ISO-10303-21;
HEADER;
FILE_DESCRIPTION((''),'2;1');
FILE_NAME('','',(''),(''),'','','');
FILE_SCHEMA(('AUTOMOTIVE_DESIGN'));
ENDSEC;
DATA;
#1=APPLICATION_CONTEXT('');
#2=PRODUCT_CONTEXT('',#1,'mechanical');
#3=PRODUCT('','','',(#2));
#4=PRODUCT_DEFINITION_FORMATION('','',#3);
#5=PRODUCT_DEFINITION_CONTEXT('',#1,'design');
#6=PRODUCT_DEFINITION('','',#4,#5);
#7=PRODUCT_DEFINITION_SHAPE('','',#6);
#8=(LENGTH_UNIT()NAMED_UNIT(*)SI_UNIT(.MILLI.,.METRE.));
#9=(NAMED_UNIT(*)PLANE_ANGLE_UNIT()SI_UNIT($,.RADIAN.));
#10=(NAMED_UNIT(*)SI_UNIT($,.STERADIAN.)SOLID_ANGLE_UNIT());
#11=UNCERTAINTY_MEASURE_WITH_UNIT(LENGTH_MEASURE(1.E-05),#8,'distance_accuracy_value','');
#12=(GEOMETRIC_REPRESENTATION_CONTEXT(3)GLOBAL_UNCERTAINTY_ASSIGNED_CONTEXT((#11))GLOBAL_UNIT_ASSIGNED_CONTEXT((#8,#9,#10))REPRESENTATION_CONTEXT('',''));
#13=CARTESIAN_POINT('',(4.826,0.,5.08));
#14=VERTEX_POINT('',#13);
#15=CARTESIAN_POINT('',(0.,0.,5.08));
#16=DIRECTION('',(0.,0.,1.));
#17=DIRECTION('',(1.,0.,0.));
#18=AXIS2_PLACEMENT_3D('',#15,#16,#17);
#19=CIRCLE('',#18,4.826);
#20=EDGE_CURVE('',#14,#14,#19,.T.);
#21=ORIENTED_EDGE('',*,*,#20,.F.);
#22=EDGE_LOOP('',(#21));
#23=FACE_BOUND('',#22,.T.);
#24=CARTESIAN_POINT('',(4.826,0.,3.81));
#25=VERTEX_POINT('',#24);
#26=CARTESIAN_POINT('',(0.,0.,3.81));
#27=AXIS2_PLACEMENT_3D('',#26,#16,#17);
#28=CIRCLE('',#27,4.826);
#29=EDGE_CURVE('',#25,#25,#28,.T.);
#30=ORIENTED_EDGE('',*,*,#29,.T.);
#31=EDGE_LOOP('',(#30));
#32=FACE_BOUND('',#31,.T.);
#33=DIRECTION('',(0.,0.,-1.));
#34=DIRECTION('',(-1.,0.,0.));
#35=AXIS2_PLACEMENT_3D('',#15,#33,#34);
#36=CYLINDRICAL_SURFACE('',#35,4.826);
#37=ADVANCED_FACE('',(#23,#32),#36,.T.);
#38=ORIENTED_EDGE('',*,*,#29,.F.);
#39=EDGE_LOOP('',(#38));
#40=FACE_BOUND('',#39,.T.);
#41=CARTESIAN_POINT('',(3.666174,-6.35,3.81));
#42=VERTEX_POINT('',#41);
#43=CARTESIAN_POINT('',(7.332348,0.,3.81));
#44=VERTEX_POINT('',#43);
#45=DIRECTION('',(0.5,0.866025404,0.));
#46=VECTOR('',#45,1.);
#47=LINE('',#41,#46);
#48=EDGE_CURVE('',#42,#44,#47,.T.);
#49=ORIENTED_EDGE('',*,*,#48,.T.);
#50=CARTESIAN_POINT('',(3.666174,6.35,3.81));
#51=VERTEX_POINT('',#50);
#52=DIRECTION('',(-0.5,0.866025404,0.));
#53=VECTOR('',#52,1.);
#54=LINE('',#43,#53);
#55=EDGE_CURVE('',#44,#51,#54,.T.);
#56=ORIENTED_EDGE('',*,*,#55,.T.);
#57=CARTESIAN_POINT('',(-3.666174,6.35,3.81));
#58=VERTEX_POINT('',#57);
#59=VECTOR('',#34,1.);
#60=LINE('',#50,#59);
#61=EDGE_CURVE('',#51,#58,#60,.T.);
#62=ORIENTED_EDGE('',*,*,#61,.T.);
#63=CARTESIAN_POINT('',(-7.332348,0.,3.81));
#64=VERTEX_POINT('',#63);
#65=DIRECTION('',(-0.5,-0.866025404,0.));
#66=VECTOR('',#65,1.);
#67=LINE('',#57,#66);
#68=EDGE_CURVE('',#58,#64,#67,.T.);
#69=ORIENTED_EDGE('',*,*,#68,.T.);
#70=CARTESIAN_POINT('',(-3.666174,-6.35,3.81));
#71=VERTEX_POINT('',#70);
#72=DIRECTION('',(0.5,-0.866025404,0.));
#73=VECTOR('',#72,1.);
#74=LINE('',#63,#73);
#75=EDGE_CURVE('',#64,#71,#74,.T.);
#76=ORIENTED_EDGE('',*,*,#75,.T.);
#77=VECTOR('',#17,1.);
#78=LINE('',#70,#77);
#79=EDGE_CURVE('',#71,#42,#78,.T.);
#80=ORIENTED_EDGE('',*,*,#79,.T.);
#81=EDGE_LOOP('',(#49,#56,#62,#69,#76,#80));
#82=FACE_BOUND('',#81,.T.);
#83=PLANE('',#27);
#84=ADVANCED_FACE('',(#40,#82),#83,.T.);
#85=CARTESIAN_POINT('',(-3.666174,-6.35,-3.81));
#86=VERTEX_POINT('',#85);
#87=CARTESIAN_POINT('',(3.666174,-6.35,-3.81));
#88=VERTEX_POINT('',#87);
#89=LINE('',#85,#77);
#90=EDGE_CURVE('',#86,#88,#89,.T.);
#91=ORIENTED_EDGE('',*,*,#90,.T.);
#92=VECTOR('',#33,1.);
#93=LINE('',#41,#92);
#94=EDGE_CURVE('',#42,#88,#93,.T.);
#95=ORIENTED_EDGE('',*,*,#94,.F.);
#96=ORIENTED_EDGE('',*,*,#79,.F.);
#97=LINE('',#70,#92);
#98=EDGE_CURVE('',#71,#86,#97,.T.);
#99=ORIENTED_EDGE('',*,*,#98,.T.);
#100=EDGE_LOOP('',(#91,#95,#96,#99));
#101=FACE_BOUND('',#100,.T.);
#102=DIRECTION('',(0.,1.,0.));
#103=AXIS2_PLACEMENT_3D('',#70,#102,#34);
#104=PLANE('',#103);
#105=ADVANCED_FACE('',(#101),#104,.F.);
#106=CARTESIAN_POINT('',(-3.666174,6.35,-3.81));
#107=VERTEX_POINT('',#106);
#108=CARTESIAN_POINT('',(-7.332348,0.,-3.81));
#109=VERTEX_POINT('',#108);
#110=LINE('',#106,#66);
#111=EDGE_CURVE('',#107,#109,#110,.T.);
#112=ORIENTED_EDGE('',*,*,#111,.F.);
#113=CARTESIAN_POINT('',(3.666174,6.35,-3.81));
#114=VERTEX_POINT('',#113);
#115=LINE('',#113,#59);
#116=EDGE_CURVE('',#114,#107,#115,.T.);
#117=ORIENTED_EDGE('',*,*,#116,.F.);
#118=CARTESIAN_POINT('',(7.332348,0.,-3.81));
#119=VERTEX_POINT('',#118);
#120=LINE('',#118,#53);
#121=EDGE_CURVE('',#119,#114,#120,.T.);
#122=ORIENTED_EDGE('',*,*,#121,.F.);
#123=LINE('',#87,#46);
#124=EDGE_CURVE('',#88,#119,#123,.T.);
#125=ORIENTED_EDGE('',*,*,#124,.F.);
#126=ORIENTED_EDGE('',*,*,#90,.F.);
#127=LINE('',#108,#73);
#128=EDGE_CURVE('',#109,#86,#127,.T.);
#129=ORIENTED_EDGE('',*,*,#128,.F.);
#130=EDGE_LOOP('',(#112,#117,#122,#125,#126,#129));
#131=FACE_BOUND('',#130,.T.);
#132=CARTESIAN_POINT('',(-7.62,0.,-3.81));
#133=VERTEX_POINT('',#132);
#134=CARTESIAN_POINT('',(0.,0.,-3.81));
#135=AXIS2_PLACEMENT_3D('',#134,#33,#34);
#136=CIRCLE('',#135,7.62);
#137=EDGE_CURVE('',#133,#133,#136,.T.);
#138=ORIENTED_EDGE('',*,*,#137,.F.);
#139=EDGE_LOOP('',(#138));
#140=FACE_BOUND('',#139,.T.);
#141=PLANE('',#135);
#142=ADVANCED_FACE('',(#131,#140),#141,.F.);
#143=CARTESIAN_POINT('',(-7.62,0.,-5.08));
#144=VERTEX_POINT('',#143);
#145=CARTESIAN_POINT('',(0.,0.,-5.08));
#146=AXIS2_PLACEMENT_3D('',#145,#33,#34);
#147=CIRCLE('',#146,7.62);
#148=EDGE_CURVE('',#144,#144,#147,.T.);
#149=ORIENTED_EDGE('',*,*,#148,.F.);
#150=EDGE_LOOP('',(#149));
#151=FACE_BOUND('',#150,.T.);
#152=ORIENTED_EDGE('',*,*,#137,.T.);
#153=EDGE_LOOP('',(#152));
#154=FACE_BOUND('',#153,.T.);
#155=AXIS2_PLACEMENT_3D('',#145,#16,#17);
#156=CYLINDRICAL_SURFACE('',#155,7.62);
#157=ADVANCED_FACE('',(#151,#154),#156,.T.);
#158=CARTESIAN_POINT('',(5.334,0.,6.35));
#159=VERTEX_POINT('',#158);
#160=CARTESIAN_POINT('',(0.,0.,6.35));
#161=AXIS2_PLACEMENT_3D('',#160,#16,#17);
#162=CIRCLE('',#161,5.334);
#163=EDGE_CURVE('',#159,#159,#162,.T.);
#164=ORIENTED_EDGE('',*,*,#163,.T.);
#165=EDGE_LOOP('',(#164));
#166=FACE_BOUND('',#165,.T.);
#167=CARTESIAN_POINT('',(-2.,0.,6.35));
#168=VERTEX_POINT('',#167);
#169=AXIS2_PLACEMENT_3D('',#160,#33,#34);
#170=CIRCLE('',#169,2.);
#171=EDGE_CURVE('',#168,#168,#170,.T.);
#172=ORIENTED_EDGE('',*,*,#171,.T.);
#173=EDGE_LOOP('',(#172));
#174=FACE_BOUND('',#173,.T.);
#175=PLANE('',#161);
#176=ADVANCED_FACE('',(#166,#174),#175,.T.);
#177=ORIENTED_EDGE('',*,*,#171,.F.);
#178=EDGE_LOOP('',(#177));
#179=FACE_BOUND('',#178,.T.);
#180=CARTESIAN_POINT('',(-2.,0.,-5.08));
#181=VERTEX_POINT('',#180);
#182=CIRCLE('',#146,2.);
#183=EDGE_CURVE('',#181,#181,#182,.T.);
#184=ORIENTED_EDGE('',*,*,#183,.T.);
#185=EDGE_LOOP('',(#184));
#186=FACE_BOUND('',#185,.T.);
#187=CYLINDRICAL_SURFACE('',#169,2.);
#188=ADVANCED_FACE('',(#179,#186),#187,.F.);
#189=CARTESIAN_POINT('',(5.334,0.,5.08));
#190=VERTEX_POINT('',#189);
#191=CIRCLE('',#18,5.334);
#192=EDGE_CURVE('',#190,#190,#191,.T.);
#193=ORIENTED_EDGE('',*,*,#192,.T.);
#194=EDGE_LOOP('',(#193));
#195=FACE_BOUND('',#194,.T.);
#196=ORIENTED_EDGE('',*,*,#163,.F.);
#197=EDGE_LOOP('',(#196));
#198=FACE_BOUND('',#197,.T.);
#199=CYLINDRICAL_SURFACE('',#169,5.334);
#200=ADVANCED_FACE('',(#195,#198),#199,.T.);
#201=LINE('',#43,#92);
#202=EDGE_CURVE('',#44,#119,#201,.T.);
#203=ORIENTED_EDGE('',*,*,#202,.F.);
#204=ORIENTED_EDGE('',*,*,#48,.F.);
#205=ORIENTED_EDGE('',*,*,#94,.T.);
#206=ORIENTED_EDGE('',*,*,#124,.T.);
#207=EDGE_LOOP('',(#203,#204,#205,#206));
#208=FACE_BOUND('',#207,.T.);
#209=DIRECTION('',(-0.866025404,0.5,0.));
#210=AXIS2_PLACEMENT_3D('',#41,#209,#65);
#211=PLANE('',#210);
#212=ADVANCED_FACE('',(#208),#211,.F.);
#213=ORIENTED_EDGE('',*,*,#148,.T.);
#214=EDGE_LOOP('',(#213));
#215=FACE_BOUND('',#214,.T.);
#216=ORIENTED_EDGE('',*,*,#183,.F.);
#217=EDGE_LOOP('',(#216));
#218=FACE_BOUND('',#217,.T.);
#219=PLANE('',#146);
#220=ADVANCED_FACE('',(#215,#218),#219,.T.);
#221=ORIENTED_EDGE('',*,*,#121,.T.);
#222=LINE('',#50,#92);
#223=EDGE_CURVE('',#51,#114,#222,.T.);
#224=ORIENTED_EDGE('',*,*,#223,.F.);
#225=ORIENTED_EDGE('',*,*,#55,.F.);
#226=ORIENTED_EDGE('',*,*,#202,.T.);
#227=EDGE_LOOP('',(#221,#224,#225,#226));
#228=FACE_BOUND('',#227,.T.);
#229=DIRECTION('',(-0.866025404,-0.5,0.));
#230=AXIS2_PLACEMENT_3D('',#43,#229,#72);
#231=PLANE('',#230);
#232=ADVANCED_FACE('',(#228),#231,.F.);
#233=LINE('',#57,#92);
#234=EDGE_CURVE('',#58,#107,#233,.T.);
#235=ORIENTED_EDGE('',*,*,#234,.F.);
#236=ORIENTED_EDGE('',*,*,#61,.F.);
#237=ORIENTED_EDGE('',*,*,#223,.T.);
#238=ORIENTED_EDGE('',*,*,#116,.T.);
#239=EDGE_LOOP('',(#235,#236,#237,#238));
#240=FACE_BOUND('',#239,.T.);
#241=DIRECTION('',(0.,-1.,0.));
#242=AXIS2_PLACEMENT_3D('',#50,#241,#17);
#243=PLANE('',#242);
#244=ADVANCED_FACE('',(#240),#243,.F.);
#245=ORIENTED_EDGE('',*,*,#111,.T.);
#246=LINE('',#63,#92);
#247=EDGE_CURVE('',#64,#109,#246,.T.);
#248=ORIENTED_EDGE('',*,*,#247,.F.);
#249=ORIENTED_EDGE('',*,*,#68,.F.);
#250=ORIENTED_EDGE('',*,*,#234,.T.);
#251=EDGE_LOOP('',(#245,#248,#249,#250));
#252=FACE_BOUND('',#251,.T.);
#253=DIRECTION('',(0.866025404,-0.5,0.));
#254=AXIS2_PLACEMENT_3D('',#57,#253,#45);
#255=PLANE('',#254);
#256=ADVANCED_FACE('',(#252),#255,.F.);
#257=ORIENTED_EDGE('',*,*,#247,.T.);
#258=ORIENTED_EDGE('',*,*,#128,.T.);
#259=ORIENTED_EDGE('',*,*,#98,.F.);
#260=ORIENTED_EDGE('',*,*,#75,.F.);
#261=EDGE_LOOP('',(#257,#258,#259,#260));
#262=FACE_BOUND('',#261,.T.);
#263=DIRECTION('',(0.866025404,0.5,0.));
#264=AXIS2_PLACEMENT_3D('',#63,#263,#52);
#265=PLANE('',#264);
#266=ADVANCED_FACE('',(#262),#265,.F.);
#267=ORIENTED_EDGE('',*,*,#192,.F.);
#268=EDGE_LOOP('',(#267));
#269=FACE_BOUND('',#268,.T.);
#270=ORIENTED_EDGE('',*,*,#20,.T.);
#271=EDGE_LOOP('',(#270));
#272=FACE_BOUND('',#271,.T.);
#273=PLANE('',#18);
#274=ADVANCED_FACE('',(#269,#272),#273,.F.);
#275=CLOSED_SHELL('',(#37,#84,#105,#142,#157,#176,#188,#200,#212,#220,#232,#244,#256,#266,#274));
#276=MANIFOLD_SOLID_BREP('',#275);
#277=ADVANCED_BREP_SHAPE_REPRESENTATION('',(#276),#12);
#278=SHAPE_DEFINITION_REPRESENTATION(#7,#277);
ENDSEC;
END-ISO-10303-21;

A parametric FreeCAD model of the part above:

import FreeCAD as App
import Part
import Sketcher
from FreeCAD import Vector
Q = App.Units.Quantity

doc = App.newDocument("Part")
body = doc.addObject("PartDesign::Body", "Body")

# Sketch on XY plane
sketch1 = body.newObject("Sketcher::SketchObject", "Sketch")
sketch1.AttachmentSupport = (doc.getObject("XY_Plane"), [""])
sketch1.MapMode = "FlatFace"
sketch1.addGeometry(Part.LineSegment(Vector(7, 0, 0), Vector(4, 6, 0)), False)
sketch1.addGeometry(Part.LineSegment(Vector(4, 6, 0), Vector(-4, 6, 0)), False)
sketch1.addGeometry(Part.LineSegment(Vector(-4, 6, 0), Vector(-7, 0, 0)), False)
sketch1.addGeometry(Part.LineSegment(Vector(-7, 0, 0), Vector(-4, -6, 0)), False)
sketch1.addGeometry(Part.LineSegment(Vector(-4, -6, 0), Vector(4, -6, 0)), False)
sketch1.addGeometry(Part.LineSegment(Vector(4, -6, 0), Vector(7, 0, 0)), False)
sketch1.addConstraint(Sketcher.Constraint("Coincident", 0, 2, 1, 1))
sketch1.addConstraint(Sketcher.Constraint("Coincident", 1, 2, 2, 1))
sketch1.addConstraint(Sketcher.Constraint("Coincident", 2, 2, 3, 1))
sketch1.addConstraint(Sketcher.Constraint("Coincident", 3, 2, 4, 1))
sketch1.addConstraint(Sketcher.Constraint("Coincident", 4, 2, 5, 1))
sketch1.addConstraint(Sketcher.Constraint("Coincident", 5, 2, 0, 1))
sketch1.addConstraint(Sketcher.Constraint("Horizontal", 1))
sketch1.addConstraint(Sketcher.Constraint("Horizontal", 4))
sketch1.addConstraint(Sketcher.Constraint("Symmetric", 0, 2, 3, 2, -1, 1))
sketch1.addConstraint(Sketcher.Constraint("Symmetric", 2, 2, 5, 2, -1, 1))
sketch1.addConstraint(Sketcher.Constraint("PointOnObject", 2, 2, -1))
sketch1.addConstraint(Sketcher.Constraint("Parallel", 2, 5))
sketch1.addConstraint(Sketcher.Constraint("Vertical", 1, 2, 3, 2))
sketch1.addConstraint(Sketcher.Constraint("Angle", 0, Q("120 deg")))
sketch1.addConstraint(Sketcher.Constraint("DistanceY", 3, 2, 1, 2, Q("0.5 in")))
sketch1.addConstraint(Sketcher.Constraint("DistanceX", 1, 2, 1, 1, 7.332348))
pad1 = body.newObject("PartDesign::Pad", "Pad")
pad1.Profile = sketch1
pad1.Length = Q("0.3 in")
pad1.Midplane = True

# Sketch on XY plane
sketch2 = body.newObject("Sketcher::SketchObject", "Sketch001")
sketch2.AttachmentSupport = (doc.getObject("XY_Plane"), [""])
sketch2.MapMode = "FlatFace"
sketch2.AttachmentOffset = App.Placement(Vector(0, 0, -0.15 * 25.4), App.Rotation())
sketch2.addGeometry(Part.Circle(Vector(0, 0, 0), Vector(0, 0, 1), 8), False)
sketch2.addConstraint(Sketcher.Constraint("Coincident", 0, 3, -1, 1))
sketch2.addConstraint(Sketcher.Constraint("Diameter", 0, Q("0.6 in")))
pad2 = body.newObject("PartDesign::Pad", "Pad001")
pad2.Profile = sketch2
pad2.Length = Q("0.05 in")
pad2.Reversed = True

# Sketch on XY plane
sketch3 = body.newObject("Sketcher::SketchObject", "Sketch002")
sketch3.AttachmentSupport = (doc.getObject("XY_Plane"), [""])
sketch3.MapMode = "FlatFace"
sketch3.AttachmentOffset = App.Placement(Vector(0, 0, 0.15 * 25.4), App.Rotation())
sketch3.addGeometry(Part.Circle(Vector(0, 0, 0), Vector(0, 0, 1), 4.8), False)
sketch3.addConstraint(Sketcher.Constraint("Coincident", 0, 3, -1, 1))
sketch3.addConstraint(Sketcher.Constraint("Diameter", 0, Q("0.38 in")))
pad3 = body.newObject("PartDesign::Pad", "Pad002")
pad3.Profile = sketch3
pad3.Length = Q("0.05 in")

# Sketch on XY plane
sketch4 = body.newObject("Sketcher::SketchObject", "Sketch003")
sketch4.AttachmentSupport = (doc.getObject("XY_Plane"), [""])
sketch4.MapMode = "FlatFace"
sketch4.AttachmentOffset = App.Placement(Vector(0, 0, 0.2 * 25.4), App.Rotation())
sketch4.addGeometry(Part.Circle(Vector(0, 0, 0), Vector(0, 0, 1), 5), False)
sketch4.addConstraint(Sketcher.Constraint("Coincident", 0, 3, -1, 1))
sketch4.addConstraint(Sketcher.Constraint("Diameter", 0, Q("0.42 in")))
pad4 = body.newObject("PartDesign::Pad", "Pad003")
pad4.Profile = sketch4
pad4.Length = Q("0.05 in")

# Sketch on XY plane
sketch5 = body.newObject("Sketcher::SketchObject", "Sketch004")
sketch5.AttachmentSupport = (doc.getObject("XY_Plane"), [""])
sketch5.MapMode = "FlatFace"
sketch5.AttachmentOffset = App.Placement(Vector(0, 0, -0.2 * 25.4), App.Rotation())
sketch5.addGeometry(Part.Circle(Vector(0, 0, 0), Vector(0, 0, 1), 2), False)
sketch5.addConstraint(Sketcher.Constraint("Coincident", 0, 3, -1, 1))
sketch5.addConstraint(Sketcher.Constraint("Diameter", 0, 4.0))
pocket1 = body.newObject("PartDesign::Pocket", "Pocket")
pocket1.Profile = sketch5
pocket1.Type = "ThroughAll"
pocket1.Reversed = True

doc.recompute()
